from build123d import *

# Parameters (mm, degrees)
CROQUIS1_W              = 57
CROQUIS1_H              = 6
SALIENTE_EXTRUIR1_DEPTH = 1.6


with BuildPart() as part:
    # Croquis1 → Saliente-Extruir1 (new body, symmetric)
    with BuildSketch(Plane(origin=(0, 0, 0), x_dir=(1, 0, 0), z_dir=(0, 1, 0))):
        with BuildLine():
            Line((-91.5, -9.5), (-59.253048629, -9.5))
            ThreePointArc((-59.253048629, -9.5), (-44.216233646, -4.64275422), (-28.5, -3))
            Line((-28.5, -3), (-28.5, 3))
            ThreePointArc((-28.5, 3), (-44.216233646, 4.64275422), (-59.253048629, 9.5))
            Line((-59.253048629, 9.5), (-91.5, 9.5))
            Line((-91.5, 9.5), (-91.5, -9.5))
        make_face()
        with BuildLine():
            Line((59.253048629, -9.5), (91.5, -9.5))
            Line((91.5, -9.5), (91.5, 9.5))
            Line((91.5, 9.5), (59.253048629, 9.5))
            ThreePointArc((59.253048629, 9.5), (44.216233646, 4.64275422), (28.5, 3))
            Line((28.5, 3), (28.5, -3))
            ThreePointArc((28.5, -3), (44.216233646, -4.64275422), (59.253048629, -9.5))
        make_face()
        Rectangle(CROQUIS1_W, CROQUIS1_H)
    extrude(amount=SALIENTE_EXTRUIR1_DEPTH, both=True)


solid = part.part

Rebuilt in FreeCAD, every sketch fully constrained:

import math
import FreeCAD as App
import Part
import Sketcher

V = App.Vector

doc = App.newDocument("Part")
body = doc.addObject("PartDesign::Body", "Body")

sketch1 = body.newObject("Sketcher::SketchObject", "Sketch")
sketch1.AttachmentSupport = (doc.getObject("XZ_Plane"), [""])
sketch1.MapMode = "FlatFace"
sketch1.addGeometry(Part.LineSegment(V(-91.5, 9.5, 0), V(-59.253049, 9.5, 0)), False)
sketch1.addGeometry(Part.ArcOfCircle(Part.Circle(V(-28.5, 79, 0), V(0, 0, 1), 76), math.radians(-113.868907), math.radians(-90)), False)
sketch1.addGeometry(Part.LineSegment(V(-28.5, 3, 0), V(28.5, 3, 0)), False)
sketch1.addGeometry(Part.ArcOfCircle(Part.Circle(V(28.5, 79, 0), V(0, 0, 1), 76), math.radians(-90), math.radians(-66.131093)), False)
sketch1.addGeometry(Part.LineSegment(V(59.253049, 9.5, 0), V(91.5, 9.5, 0)), False)
sketch1.addGeometry(Part.LineSegment(V(91.5, 9.5, 0), V(91.5, -9.5, 0)), False)
sketch1.addGeometry(Part.LineSegment(V(91.5, -9.5, 0), V(59.253049, -9.5, 0)), False)
sketch1.addGeometry(Part.ArcOfCircle(Part.Circle(V(28.5, -79, 0), V(0, 0, 1), 76), math.radians(66.131093), math.radians(90)), False)
sketch1.addGeometry(Part.LineSegment(V(28.5, -3, 0), V(-28.5, -3, 0)), False)
sketch1.addGeometry(Part.ArcOfCircle(Part.Circle(V(-28.5, -79, 0), V(0, 0, 1), 76), math.radians(90), math.radians(113.868907)), False)
sketch1.addGeometry(Part.LineSegment(V(-59.253049, -9.5, 0), V(-91.5, -9.5, 0)), False)
sketch1.addGeometry(Part.LineSegment(V(-91.5, -9.5, 0), V(-91.5, 9.5, 0)), False)
sketch1.addConstraint(Sketcher.Constraint("Coincident", 0, 2, 1, 1))
sketch1.addConstraint(Sketcher.Constraint("Tangent", 1, 2, 2, 1))
sketch1.addConstraint(Sketcher.Constraint("Tangent", 2, 2, 3, 1))
sketch1.addConstraint(Sketcher.Constraint("Coincident", 3, 2, 4, 1))
sketch1.addConstraint(Sketcher.Constraint("Coincident", 4, 2, 5, 1))
sketch1.addConstraint(Sketcher.Constraint("Coincident", 5, 2, 6, 1))
sketch1.addConstraint(Sketcher.Constraint("Coincident", 6, 2, 7, 1))
sketch1.addConstraint(Sketcher.Constraint("Tangent", 7, 2, 8, 1))
sketch1.addConstraint(Sketcher.Constraint("Tangent", 8, 2, 9, 1))
sketch1.addConstraint(Sketcher.Constraint("Coincident", 9, 2, 10, 1))
sketch1.addConstraint(Sketcher.Constraint("Coincident", 10, 2, 11, 1))
sketch1.addConstraint(Sketcher.Constraint("Coincident", 11, 2, 0, 1))
sketch1.addConstraint(Sketcher.Constraint("Horizontal", 0))
sketch1.addConstraint(Sketcher.Constraint("Horizontal", 2))
sketch1.addConstraint(Sketcher.Constraint("Horizontal", 4))
sketch1.addConstraint(Sketcher.Constraint("Vertical", 5))
sketch1.addConstraint(Sketcher.Constraint("Horizontal", 6))
sketch1.addConstraint(Sketcher.Constraint("Horizontal", 8))
sketch1.addConstraint(Sketcher.Constraint("Horizontal", 10))
sketch1.addConstraint(Sketcher.Constraint("Vertical", 11))
sketch1.addConstraint(Sketcher.Constraint("Equal", 1, 3))
sketch1.addConstraint(Sketcher.Constraint("Equal", 3, 7))
sketch1.addConstraint(Sketcher.Constraint("Equal", 7, 9))
sketch1.addConstraint(Sketcher.Constraint("Symmetric", 1, 3, 7, 3, -1, 1))
sketch1.addConstraint(Sketcher.Constraint("Symmetric", 3, 2, 9, 2, -1, 1))
sketch1.addConstraint(Sketcher.Constraint("Symmetric", 5, 2, 11, 2, -1, 1))
sketch1.addConstraint(Sketcher.Constraint("Symmetric", 0, 2, 3, 2, -2))
sketch1.addConstraint(Sketcher.Constraint("Radius", 1, 76.0))
sketch1.addConstraint(Sketcher.Constraint("DistanceX", 2, 1, 2, 2, 57.0))
sketch1.addConstraint(Sketcher.Constraint("DistanceY", 5, 2, 5, 1, 19.0))
sketch1.addConstraint(Sketcher.Constraint("DistanceY", -1, 1, 1, 3, 79.0))
sketch1.addConstraint(Sketcher.Constraint("DistanceX", 2, 2, 4, 2, 63.0))
pad1 = body.newObject("PartDesign::Pad", "Pad")
pad1.Profile = sketch1
pad1.Length = 3.2
pad1.Midplane = True

doc.recompute()
